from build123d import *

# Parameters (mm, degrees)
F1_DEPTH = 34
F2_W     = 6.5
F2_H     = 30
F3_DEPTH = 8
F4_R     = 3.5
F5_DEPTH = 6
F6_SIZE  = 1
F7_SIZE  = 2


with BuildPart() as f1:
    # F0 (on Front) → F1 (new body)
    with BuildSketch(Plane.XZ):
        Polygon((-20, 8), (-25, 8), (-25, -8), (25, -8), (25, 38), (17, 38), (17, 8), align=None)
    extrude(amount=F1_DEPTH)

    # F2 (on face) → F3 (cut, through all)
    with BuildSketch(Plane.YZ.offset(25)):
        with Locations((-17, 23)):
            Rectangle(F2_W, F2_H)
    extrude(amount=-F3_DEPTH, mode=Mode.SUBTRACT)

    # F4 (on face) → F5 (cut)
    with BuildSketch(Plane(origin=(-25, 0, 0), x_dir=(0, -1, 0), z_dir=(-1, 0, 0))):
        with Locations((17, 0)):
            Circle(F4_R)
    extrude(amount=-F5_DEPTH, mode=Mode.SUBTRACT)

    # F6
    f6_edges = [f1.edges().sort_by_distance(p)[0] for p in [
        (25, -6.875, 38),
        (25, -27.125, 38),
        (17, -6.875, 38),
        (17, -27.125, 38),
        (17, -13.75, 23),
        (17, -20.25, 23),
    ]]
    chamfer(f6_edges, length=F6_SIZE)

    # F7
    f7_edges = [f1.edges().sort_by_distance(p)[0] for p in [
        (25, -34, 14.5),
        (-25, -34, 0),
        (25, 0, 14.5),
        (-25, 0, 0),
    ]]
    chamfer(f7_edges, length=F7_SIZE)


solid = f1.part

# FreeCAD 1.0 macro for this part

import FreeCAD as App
import Part
import Sketcher
from FreeCAD import Vector


def edges_at(feature, points):
    """Names of the edges that pass closest to the given points."""
    edges = feature.Shape.Edges
    near = lambda p: min(range(len(edges)), key=lambda i: edges[i].distToShape(Part.Vertex(*p))[0])
    return sorted({f"Edge{near(p) + 1}" for p in points})

doc = App.newDocument("Part")
body = doc.addObject("PartDesign::Body", "Body")

sketch1 = doc.addObject("Sketcher::SketchObject", "Sketch")
body.addObject(sketch1)
sketch1.AttachmentSupport = (doc.XZ_Plane, [""])
sketch1.MapMode = "FlatFace"
sketch1.addGeometry([
    Part.LineSegment(Vector(-25, 8, 0), Vector(-25, -8, 0)),
    Part.LineSegment(Vector(-25, -8, 0), Vector(25, -8, 0)),
    Part.LineSegment(Vector(25, -8, 0), Vector(25, 38, 0)),
    Part.LineSegment(Vector(25, 38, 0), Vector(17, 38, 0)),
    Part.LineSegment(Vector(17, 38, 0), Vector(17, 8, 0)),
    Part.LineSegment(Vector(17, 8, 0), Vector(-25, 8, 0)),
], False)
sketch1.addConstraint([
    Sketcher.Constraint("Coincident", 0, 2, 1, 1),
    Sketcher.Constraint("Coincident", 1, 2, 2, 1),
    Sketcher.Constraint("Coincident", 2, 2, 3, 1),
    Sketcher.Constraint("Coincident", 3, 2, 4, 1),
    Sketcher.Constraint("Coincident", 4, 2, 5, 1),
    Sketcher.Constraint("Coincident", 5, 2, 0, 1),
    Sketcher.Constraint("Vertical", 0),
    Sketcher.Constraint("Horizontal", 1),
    Sketcher.Constraint("Vertical", 2),
    Sketcher.Constraint("Horizontal", 3),
    Sketcher.Constraint("Vertical", 4),
    Sketcher.Constraint("Horizontal", 5),
    Sketcher.Constraint("Symmetric", 1, 2, 5, 2, -1, 1),
    Sketcher.Constraint("DistanceX", 1, 1, 1, 2, 50.0),
    Sketcher.Constraint("DistanceX", 3, 2, 3, 1, 8.0),
    Sketcher.Constraint("DistanceY", 0, 2, 0, 1, 16.0),
    Sketcher.Constraint("DistanceY", 2, 1, 2, 2, 46.0),
])
pad1 = doc.addObject("PartDesign::Pad", "Pad")
body.addObject(pad1)
pad1.Profile = sketch1
pad1.Length = 34

sketch2 = doc.addObject("Sketcher::SketchObject", "Sketch001")
body.addObject(sketch2)
sketch2.AttachmentSupport = (doc.YZ_Plane, [""])
sketch2.MapMode = "FlatFace"
sketch2.AttachmentOffset = App.Placement(Vector(0, 0, 25), App.Rotation())
sketch2.addGeometry([
    Part.LineSegment(Vector(-20.25, 38, 0), Vector(-20.25, 8, 0)),
    Part.LineSegment(Vector(-20.25, 8, 0), Vector(-13.75, 8, 0)),
    Part.LineSegment(Vector(-13.75, 8, 0), Vector(-13.75, 38, 0)),
    Part.LineSegment(Vector(-13.75, 38, 0), Vector(-20.25, 38, 0)),
], False)
sketch2.addConstraint([
    Sketcher.Constraint("Coincident", 0, 2, 1, 1),
    Sketcher.Constraint("Coincident", 1, 2, 2, 1),
    Sketcher.Constraint("Coincident", 2, 2, 3, 1),
    Sketcher.Constraint("Coincident", 3, 2, 0, 1),
    Sketcher.Constraint("Vertical", 0),
    Sketcher.Constraint("Horizontal", 1),
    Sketcher.Constraint("Vertical", 2),
    Sketcher.Constraint("Horizontal", 3),
    Sketcher.Constraint("DistanceY", 0, 2, 0, 1, 30.0),
    Sketcher.Constraint("DistanceX", 1, 1, 1, 2, 6.5),
    Sketcher.Constraint("DistanceY", -1, 1, 0, 2, 8.0),
    Sketcher.Constraint("DistanceX", 0, 2, -1, 1, 20.25),
])
pocket1 = doc.addObject("PartDesign::Pocket", "Pocket")
body.addObject(pocket1)
pocket1.Profile = sketch2
pocket1.Type = "ThroughAll"

sketch3 = doc.addObject("Sketcher::SketchObject", "Sketch002")
body.addObject(sketch3)
sketch3.AttachmentSupport = (doc.YZ_Plane, [""])
sketch3.MapMode = "FlatFace"
sketch3.AttachmentOffset = App.Placement(Vector(0, 0, -25), App.Rotation())
sketch3.addGeometry(Part.Circle(Vector(-17, 0, 0), Vector(0, 0, 1), 3.5), False)
sketch3.addConstraint([
    Sketcher.Constraint("PointOnObject", 0, 3, -1),
    Sketcher.Constraint("Diameter", 0, 7.0),
    Sketcher.Constraint("DistanceX", 0, 3, -1, 1, 17.0),
])
pocket2 = doc.addObject("PartDesign::Pocket", "Pocket001")
body.addObject(pocket2)
pocket2.Profile = sketch3
pocket2.Length = 6
pocket2.Reversed = True
doc.recompute()

chamfer = doc.addObject("PartDesign::Chamfer", "Chamfer")
body.addObject(chamfer)
chamfer.Base = (pocket2, edges_at(pocket2, [
    (25, -6.875, 38),
    (25, -27.125, 38),
    (17, -6.875, 38),
    (17, -27.125, 38),
    (17, -13.75, 23),
    (17, -20.25, 23),
]))
chamfer.Size = 1
doc.recompute()

chamfer2 = doc.addObject("PartDesign::Chamfer", "Chamfer001")
body.addObject(chamfer2)
chamfer2.Base = (chamfer, edges_at(chamfer, [
    (25, -34, 14.5),
    (-25, -34, 0),
    (25, 0, 14.5),
    (-25, 0, 0),
]))
chamfer2.Size = 2

doc.recompute()
